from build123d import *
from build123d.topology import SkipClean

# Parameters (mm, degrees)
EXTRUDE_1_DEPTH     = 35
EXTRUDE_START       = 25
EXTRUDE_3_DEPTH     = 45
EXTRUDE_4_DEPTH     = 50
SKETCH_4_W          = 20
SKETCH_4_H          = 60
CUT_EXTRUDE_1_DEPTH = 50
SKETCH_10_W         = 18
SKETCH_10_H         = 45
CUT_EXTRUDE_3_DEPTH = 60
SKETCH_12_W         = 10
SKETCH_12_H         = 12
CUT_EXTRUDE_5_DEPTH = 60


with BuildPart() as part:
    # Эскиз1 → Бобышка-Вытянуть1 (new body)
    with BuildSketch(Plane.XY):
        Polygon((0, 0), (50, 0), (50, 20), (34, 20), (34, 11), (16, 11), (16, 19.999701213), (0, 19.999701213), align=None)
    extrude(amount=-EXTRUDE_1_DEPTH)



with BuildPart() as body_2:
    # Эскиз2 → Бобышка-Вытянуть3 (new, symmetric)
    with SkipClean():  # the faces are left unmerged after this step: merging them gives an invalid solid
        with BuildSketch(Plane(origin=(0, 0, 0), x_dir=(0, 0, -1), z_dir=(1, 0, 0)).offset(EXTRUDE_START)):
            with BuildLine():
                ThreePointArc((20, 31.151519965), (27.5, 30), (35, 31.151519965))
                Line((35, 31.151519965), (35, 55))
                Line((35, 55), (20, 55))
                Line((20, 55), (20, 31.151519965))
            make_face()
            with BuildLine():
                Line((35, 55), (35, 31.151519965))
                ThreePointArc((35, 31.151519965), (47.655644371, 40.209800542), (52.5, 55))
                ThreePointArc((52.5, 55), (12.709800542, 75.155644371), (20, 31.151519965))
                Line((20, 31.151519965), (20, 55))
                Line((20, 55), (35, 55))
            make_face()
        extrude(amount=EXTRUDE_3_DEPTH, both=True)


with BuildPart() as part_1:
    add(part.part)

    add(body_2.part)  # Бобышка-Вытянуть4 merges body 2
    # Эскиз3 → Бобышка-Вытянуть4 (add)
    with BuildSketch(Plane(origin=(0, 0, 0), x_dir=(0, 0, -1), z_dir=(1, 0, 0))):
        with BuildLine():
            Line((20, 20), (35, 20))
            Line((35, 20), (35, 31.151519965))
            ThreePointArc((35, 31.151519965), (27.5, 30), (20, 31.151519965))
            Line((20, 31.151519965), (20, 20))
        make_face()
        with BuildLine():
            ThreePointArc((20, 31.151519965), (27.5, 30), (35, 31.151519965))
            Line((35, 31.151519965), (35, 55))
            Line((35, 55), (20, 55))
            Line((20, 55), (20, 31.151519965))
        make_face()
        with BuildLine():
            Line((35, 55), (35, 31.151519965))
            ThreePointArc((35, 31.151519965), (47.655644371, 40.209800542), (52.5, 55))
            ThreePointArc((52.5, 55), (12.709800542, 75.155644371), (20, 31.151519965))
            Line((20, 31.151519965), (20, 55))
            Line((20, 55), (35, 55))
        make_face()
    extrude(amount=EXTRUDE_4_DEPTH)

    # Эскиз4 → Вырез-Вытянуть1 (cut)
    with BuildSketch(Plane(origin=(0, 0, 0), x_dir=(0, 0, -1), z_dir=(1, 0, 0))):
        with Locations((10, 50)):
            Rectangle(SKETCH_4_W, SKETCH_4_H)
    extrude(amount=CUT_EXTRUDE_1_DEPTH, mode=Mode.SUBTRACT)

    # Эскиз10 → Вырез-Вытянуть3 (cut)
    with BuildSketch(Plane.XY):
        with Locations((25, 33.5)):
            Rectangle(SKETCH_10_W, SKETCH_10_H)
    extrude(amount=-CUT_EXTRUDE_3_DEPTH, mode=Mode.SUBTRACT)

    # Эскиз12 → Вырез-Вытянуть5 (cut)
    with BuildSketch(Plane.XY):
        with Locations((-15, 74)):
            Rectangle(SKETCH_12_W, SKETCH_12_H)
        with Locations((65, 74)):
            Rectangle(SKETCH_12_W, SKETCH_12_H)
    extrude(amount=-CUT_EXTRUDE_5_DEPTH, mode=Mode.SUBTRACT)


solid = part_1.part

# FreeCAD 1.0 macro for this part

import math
import FreeCAD as App
import Part
import Sketcher

V = App.Vector
Q = App.Units.Quantity

doc = App.newDocument("Part")
params = doc.addObject("Spreadsheet::Sheet", "Params")
for row, (alias, value) in enumerate([
    ("sketch1_width", "50 mm"),
    ("sketch1_width2", "16 mm"),
    ("sketch1_height", "20 mm"),
    ("sketch1_height2", "9 mm"),
    ("pad1_length", "35 mm"),
    ("sketch2_radius", "25 mm"),
    ("sketch2_height", "15 mm"),
    ("pad2_length", "90 mm"),
    ("sketch3_radius", "25 mm"),
    ("sketch3_height", "15 mm"),
    ("pad3_length", "50 mm"),
    ("sketch4_width", "60 mm"),
    ("sketch4_height", "20 mm"),
    ("pocket1_length", "50 mm"),
    ("sketch5_width", "18 mm"),
    ("sketch5_height", "45 mm"),
    ("pocket2_length", "60 mm"),
    ("sketch6_width", "10 mm"),
    ("sketch6_height", "12 mm"),
    ("pocket3_length", "60 mm"),
], start=1):
    params.set(f"A{row}", alias)
    params.set(f"B{row}", "=" + value)
    params.setAlias(f"B{row}", alias)

body = doc.addObject("PartDesign::Body", "Body")

# Sketch on XY plane
sketch1 = body.newObject("Sketcher::SketchObject", "Sketch")
sketch1.AttachmentSupport = (doc.getObject("XY_Plane"), [""])
sketch1.MapMode = "FlatFace"
sketch1.addGeometry(Part.LineSegment(V(0, 0, 0), V(50, 0, 0)), False)
sketch1.addGeometry(Part.LineSegment(V(50, 0, 0), V(50, 20, 0)), False)
sketch1.addGeometry(Part.LineSegment(V(50, 20, 0), V(34, 20, 0)), False)
sketch1.addGeometry(Part.LineSegment(V(34, 20, 0), V(34, 11, 0)), False)
sketch1.addGeometry(Part.LineSegment(V(34, 11, 0), V(16, 11, 0)), False)
sketch1.addGeometry(Part.LineSegment(V(16, 11, 0), V(16, 20, 0)), False)
sketch1.addGeometry(Part.LineSegment(V(16, 20, 0), V(0, 20, 0)), False)
sketch1.addGeometry(Part.LineSegment(V(0, 20, 0), V(0, 0, 0)), False)
sketch1.addConstraint(Sketcher.Constraint("Coincident", 0, 2, 1, 1))
sketch1.addConstraint(Sketcher.Constraint("Coincident", 1, 2, 2, 1))
sketch1.addConstraint(Sketcher.Constraint("Coincident", 2, 2, 3, 1))
sketch1.addConstraint(Sketcher.Constraint("Coincident", 3, 2, 4, 1))
sketch1.addConstraint(Sketcher.Constraint("Coincident", 4, 2, 5, 1))
sketch1.addConstraint(Sketcher.Constraint("Coincident", 5, 2, 6, 1))
sketch1.addConstraint(Sketcher.Constraint("Coincident", 6, 2, 7, 1))
sketch1.addConstraint(Sketcher.Constraint("Coincident", 7, 2, 0, 1))
sketch1.addConstraint(Sketcher.Constraint("Horizontal", 0))
sketch1.addConstraint(Sketcher.Constraint("Vertical", 1))
sketch1.addConstraint(Sketcher.Constraint("Horizontal", 2))
sketch1.addConstraint(Sketcher.Constraint("Vertical", 3))
sketch1.addConstraint(Sketcher.Constraint("Horizontal", 4))
sketch1.addConstraint(Sketcher.Constraint("Vertical", 5))
sketch1.addConstraint(Sketcher.Constraint("Horizontal", 6))
sketch1.addConstraint(Sketcher.Constraint("Vertical", 7))
sketch1.addConstraint(Sketcher.Constraint("Coincident", 7, 2, -1, 1))
sketch1.addConstraint(Sketcher.Constraint("Equal", 2, 6))
sketch1.addConstraint(Sketcher.Constraint("DistanceX", 0, 1, 0, 2, Q("50 mm")))
sketch1.addConstraint(Sketcher.Constraint("DistanceX", 2, 2, 2, 1, Q("16 mm")))
sketch1.addConstraint(Sketcher.Constraint("DistanceY", 1, 1, 1, 2, Q("20 mm")))
sketch1.addConstraint(Sketcher.Constraint("DistanceY", 3, 2, 3, 1, Q("9 mm")))
sketch1.addConstraint(Sketcher.Constraint("DistanceY", 5, 1, 5, 2, Q("8.999701 mm")))
sketch1.setExpression("Constraints[18]", "Params.sketch1_width")
sketch1.setExpression("Constraints[19]", "Params.sketch1_width2")
sketch1.setExpression("Constraints[20]", "Params.sketch1_height")
sketch1.setExpression("Constraints[21]", "Params.sketch1_height2")
pad1 = body.newObject("PartDesign::Pad", "Pad")
pad1.Profile = sketch1
pad1.setExpression("Length", "Params.pad1_length")
pad1.Reversed = True
body2 = doc.addObject("PartDesign::Body", "Body001")

# Sketch on YZ plane
sketch2 = body2.newObject("Sketcher::SketchObject", "Sketch001")
sketch2.AttachmentSupport = (doc.getObject("YZ_Plane001"), [""])
sketch2.MapMode = "FlatFace"
sketch2.AttachmentOffset = App.Placement(V(0, 0, 25), App.Rotation())
sketch2.addGeometry(Part.ArcOfCircle(Part.Circle(V(55, -28, 0), V(0, 0, 1), 25), math.radians(163), math.radians(197)), False)
sketch2.addGeometry(Part.LineSegment(V(31, -35, 0), V(55, -35, 0)), False)
sketch2.addGeometry(Part.LineSegment(V(55, -35, 0), V(55, -20, 0)), False)
sketch2.addGeometry(Part.LineSegment(V(55, -20, 0), V(31, -20, 0)), False)
sketch2.addGeometry(Part.LineSegment(V(55, -35, 0), V(31, -35, 0)), False)
sketch2.addGeometry(Part.ArcOfCircle(Part.Circle(V(55, -28, 0), V(0, 0, 1), 25), math.radians(-163), math.radians(-90)), False)
sketch2.addGeometry(Part.ArcOfCircle(Part.Circle(V(55, -28, 0), V(0, 0, 1), 25), math.radians(-90), math.radians(163)), False)
sketch2.addGeometry(Part.LineSegment(V(31, -20, 0), V(55, -20, 0)), False)
sketch2.addGeometry(Part.LineSegment(V(55, -20, 0), V(55, -35, 0)), False)
sketch2.addConstraint(Sketcher.Constraint("Coincident", 0, 2, 1, 1))
sketch2.addConstraint(Sketcher.Constraint("Coincident", 1, 2, 2, 1))
sketch2.addConstraint(Sketcher.Constraint("Coincident", 2, 2, 3, 1))
sketch2.addConstraint(Sketcher.Constraint("Coincident", 3, 2, 0, 1))
sketch2.addConstraint(Sketcher.Constraint("Coincident", 4, 2, 5, 1))
sketch2.addConstraint(Sketcher.Constraint("Tangent", 5, 2, 6, 1))
sketch2.addConstraint(Sketcher.Constraint("Coincident", 6, 2, 7, 1))
sketch2.addConstraint(Sketcher.Constraint("Coincident", 7, 2, 8, 1))
sketch2.addConstraint(Sketcher.Constraint("Coincident", 8, 2, 4, 1))
sketch2.addConstraint(Sketcher.Constraint("Horizontal", 1))
sketch2.addConstraint(Sketcher.Constraint("Vertical", 2))
sketch2.addConstraint(Sketcher.Constraint("Horizontal", 3))
sketch2.addConstraint(Sketcher.Constraint("Horizontal", 4))
sketch2.addConstraint(Sketcher.Constraint("Horizontal", 7))
sketch2.addConstraint(Sketcher.Constraint("Vertical", 8))
sketch2.addConstraint(Sketcher.Constraint("Coincident", 5, 3, 0, 3))
sketch2.addConstraint(Sketcher.Constraint("Coincident", 4, 2, 0, 2))
sketch2.addConstraint(Sketcher.Constraint("Coincident", 6, 2, 3, 2))
sketch2.addConstraint(Sketcher.Constraint("Vertical", 6, 3, 1, 2))
sketch2.addConstraint(Sketcher.Constraint("Vertical", 0, 2, 3, 2))
sketch2.addConstraint(Sketcher.Constraint("Vertical", 2, 2, 5, 2))
sketch2.addConstraint(Sketcher.Constraint("Vertical", 5, 2, 7, 2))
sketch2.addConstraint(Sketcher.Constraint("Radius", 0, Q("25 mm")))
sketch2.addConstraint(Sketcher.Constraint("DistanceY", 2, 1, 2, 2, Q("15 mm")))
sketch2.addConstraint(Sketcher.Constraint("DistanceX", -1, 1, 0, 3, Q("55 mm")))
sketch2.addConstraint(Sketcher.Constraint("DistanceY", 0, 2, -1, 1, Q("35 mm")))
sketch2.setExpression("Constraints[22]", "Params.sketch2_radius")
sketch2.setExpression("Constraints[23]", "Params.sketch2_height")
pad2 = body2.newObject("PartDesign::Pad", "Pad001")
pad2.Profile = sketch2
pad2.setExpression("Length", "Params.pad2_length")
pad2.Midplane = True
body.AllowCompound = True
doc.recompute()

boolean = body.newObject("PartDesign::Boolean", "Boolean")
boolean.Type = "Fuse"
boolean.addObjects([body2])

# Sketch on YZ plane
sketch3 = body.newObject("Sketcher::SketchObject", "Sketch002")
sketch3.AttachmentSupport = (doc.getObject("YZ_Plane"), [""])
sketch3.MapMode = "FlatFace"
sketch3.addGeometry(Part.LineSegment(V(20, -20, 0), V(20, -35, 0)), False)
sketch3.addGeometry(Part.LineSegment(V(20, -35, 0), V(31, -35, 0)), False)
sketch3.addGeometry(Part.ArcOfCircle(Part.Circle(V(55, -28, 0), V(0, 0, 1), 25), math.radians(-163), math.radians(-90)), False)
sketch3.addGeometry(Part.ArcOfCircle(Part.Circle(V(55, -28, 0), V(0, 0, 1), 25), math.radians(-90), math.radians(163)), False)
sketch3.addGeometry(Part.LineSegment(V(31, -20, 0), V(20, -20, 0)), False)
sketch3.addConstraint(Sketcher.Constraint("Coincident", 0, 2, 1, 1))
sketch3.addConstraint(Sketcher.Constraint("Coincident", 1, 2, 2, 1))
sketch3.addConstraint(Sketcher.Constraint("Tangent", 2, 2, 3, 1))
sketch3.addConstraint(Sketcher.Constraint("Coincident", 3, 2, 4, 1))
sketch3.addConstraint(Sketcher.Constraint("Coincident", 4, 2, 0, 1))
sketch3.addConstraint(Sketcher.Constraint("Vertical", 0))
sketch3.addConstraint(Sketcher.Constraint("Horizontal", 1))
sketch3.addConstraint(Sketcher.Constraint("Horizontal", 4))
sketch3.addConstraint(Sketcher.Constraint("Equal", 2, 3))
sketch3.addConstraint(Sketcher.Constraint("Vertical", 3, 3, 2, 2))
sketch3.addConstraint(Sketcher.Constraint("Vertical", 1, 2, 3, 2))
sketch3.addConstraint(Sketcher.Constraint("Radius", 2, Q("25 mm")))
sketch3.addConstraint(Sketcher.Constraint("DistanceY", 0, 2, 0, 1, Q("15 mm")))
sketch3.addConstraint(Sketcher.Constraint("DistanceX", -1, 1, 2, 3, Q("55 mm")))
sketch3.addConstraint(Sketcher.Constraint("DistanceX", -1, 1, 0, 2, Q("20 mm")))
sketch3.addConstraint(Sketcher.Constraint("DistanceY", 0, 2, -1, 1, Q("35 mm")))
sketch3.setExpression("Constraints[11]", "Params.sketch3_radius")
sketch3.setExpression("Constraints[12]", "Params.sketch3_height")
pad3 = body.newObject("PartDesign::Pad", "Pad002")
pad3.Profile = sketch3
pad3.setExpression("Length", "Params.pad3_length")

# Sketch on YZ plane
sketch4 = body.newObject("Sketcher::SketchObject", "Sketch003")
sketch4.AttachmentSupport = (doc.getObject("YZ_Plane"), [""])
sketch4.MapMode = "FlatFace"
sketch4.addGeometry(Part.LineSegment(V(80, 0, 0), V(20, 0, 0)), False)
sketch4.addGeometry(Part.LineSegment(V(20, 0, 0), V(20, -20, 0)), False)
sketch4.addGeometry(Part.LineSegment(V(20, -20, 0), V(80, -20, 0)), False)
sketch4.addGeometry(Part.LineSegment(V(80, -20, 0), V(80, 0, 0)), False)
sketch4.addConstraint(Sketcher.Constraint("Coincident", 0, 2, 1, 1))
sketch4.addConstraint(Sketcher.Constraint("Coincident", 1, 2, 2, 1))
sketch4.addConstraint(Sketcher.Constraint("Coincident", 2, 2, 3, 1))
sketch4.addConstraint(Sketcher.Constraint("Coincident", 3, 2, 0, 1))
sketch4.addConstraint(Sketcher.Constraint("Horizontal", 0))
sketch4.addConstraint(Sketcher.Constraint("Vertical", 1))
sketch4.addConstraint(Sketcher.Constraint("Horizontal", 2))
sketch4.addConstraint(Sketcher.Constraint("Vertical", 3))
sketch4.addConstraint(Sketcher.Constraint("PointOnObject", 0, 2, -1))
sketch4.addConstraint(Sketcher.Constraint("DistanceX", 0, 2, 0, 1, Q("60 mm")))
sketch4.addConstraint(Sketcher.Constraint("DistanceY", 1, 2, 1, 1, Q("20 mm")))
sketch4.addConstraint(Sketcher.Constraint("DistanceX", -1, 1, 0, 2, Q("20 mm")))
sketch4.setExpression("Constraints[9]", "Params.sketch4_width")
sketch4.setExpression("Constraints[10]", "Params.sketch4_height")
pocket1 = body.newObject("PartDesign::Pocket", "Pocket")
pocket1.Profile = sketch4
pocket1.setExpression("Length", "Params.pocket1_length")
pocket1.Reversed = True

# Sketch on XY plane
sketch5 = body.newObject("Sketcher::SketchObject", "Sketch004")
sketch5.AttachmentSupport = (doc.getObject("XY_Plane"), [""])
sketch5.MapMode = "FlatFace"
sketch5.addGeometry(Part.LineSegment(V(16, 56, 0), V(16, 11, 0)), False)
sketch5.addGeometry(Part.LineSegment(V(16, 11, 0), V(34, 11, 0)), False)
sketch5.addGeometry(Part.LineSegment(V(34, 11, 0), V(34, 56, 0)), False)
sketch5.addGeometry(Part.LineSegment(V(34, 56, 0), V(16, 56, 0)), False)
sketch5.addConstraint(Sketcher.Constraint("Coincident", 0, 2, 1, 1))
sketch5.addConstraint(Sketcher.Constraint("Coincident", 1, 2, 2, 1))
sketch5.addConstraint(Sketcher.Constraint("Coincident", 2, 2, 3, 1))
sketch5.addConstraint(Sketcher.Constraint("Coincident", 3, 2, 0, 1))
sketch5.addConstraint(Sketcher.Constraint("Vertical", 0))
sketch5.addConstraint(Sketcher.Constraint("Horizontal", 1))
sketch5.addConstraint(Sketcher.Constraint("Vertical", 2))
sketch5.addConstraint(Sketcher.Constraint("Horizontal", 3))
sketch5.addConstraint(Sketcher.Constraint("DistanceX", 1, 1, 1, 2, Q("18 mm")))
sketch5.addConstraint(Sketcher.Constraint("DistanceY", 0, 2, 0, 1, Q("45 mm")))
sketch5.addConstraint(Sketcher.Constraint("DistanceX", -1, 1, 0, 2, Q("16 mm")))
sketch5.addConstraint(Sketcher.Constraint("DistanceY", -1, 1, 0, 2, Q("11 mm")))
sketch5.setExpression("Constraints[8]", "Params.sketch5_width")
sketch5.setExpression("Constraints[9]", "Params.sketch5_height")
pocket2 = body.newObject("PartDesign::Pocket", "Pocket001")
pocket2.Profile = sketch5
pocket2.setExpression("Length", "Params.pocket2_length")

# Sketch on XY plane
sketch6 = body.newObject("Sketcher::SketchObject", "Sketch005")
sketch6.AttachmentSupport = (doc.getObject("XY_Plane"), [""])
sketch6.MapMode = "FlatFace"
sketch6.addGeometry(Part.LineSegment(V(-20, 80, 0), V(-20, 68, 0)), False)
sketch6.addGeometry(Part.LineSegment(V(-20, 68, 0), V(-10, 68, 0)), False)
sketch6.addGeometry(Part.LineSegment(V(-10, 68, 0), V(-10, 80, 0)), False)
sketch6.addGeometry(Part.LineSegment(V(-10, 80, 0), V(-20, 80, 0)), False)
sketch6.addGeometry(Part.LineSegment(V(60, 80, 0), V(60, 68, 0)), False)
sketch6.addGeometry(Part.LineSegment(V(60, 68, 0), V(70, 68, 0)), False)
sketch6.addGeometry(Part.LineSegment(V(70, 68, 0), V(70, 80, 0)), False)
sketch6.addGeometry(Part.LineSegment(V(70, 80, 0), V(60, 80, 0)), False)
sketch6.addConstraint(Sketcher.Constraint("Coincident", 0, 2, 1, 1))
sketch6.addConstraint(Sketcher.Constraint("Coincident", 1, 2, 2, 1))
sketch6.addConstraint(Sketcher.Constraint("Coincident", 2, 2, 3, 1))
sketch6.addConstraint(Sketcher.Constraint("Coincident", 3, 2, 0, 1))
sketch6.addConstraint(Sketcher.Constraint("Coincident", 4, 2, 5, 1))
sketch6.addConstraint(Sketcher.Constraint("Coincident", 5, 2, 6, 1))
sketch6.addConstraint(Sketcher.Constraint("Coincident", 6, 2, 7, 1))
sketch6.addConstraint(Sketcher.Constraint("Coincident", 7, 2, 4, 1))
sketch6.addConstraint(Sketcher.Constraint("Vertical", 0))
sketch6.addConstraint(Sketcher.Constraint("Horizontal", 1))
sketch6.addConstraint(Sketcher.Constraint("Vertical", 2))
sketch6.addConstraint(Sketcher.Constraint("Horizontal", 3))
sketch6.addConstraint(Sketcher.Constraint("Vertical", 4))
sketch6.addConstraint(Sketcher.Constraint("Horizontal", 5))
sketch6.addConstraint(Sketcher.Constraint("Vertical", 6))
sketch6.addConstraint(Sketcher.Constraint("Horizontal", 7))
sketch6.addConstraint(Sketcher.Constraint("Horizontal", 1, 2, 4, 2))
sketch6.addConstraint(Sketcher.Constraint("Horizontal", 3, 2, 6, 2))
sketch6.addConstraint(Sketcher.Constraint("Equal", 3, 5))
sketch6.addConstraint(Sketcher.Constraint("DistanceX", 1, 1, 1, 2, Q("10 mm")))
sketch6.addConstraint(Sketcher.Constraint("DistanceY", 0, 2, 0, 1, Q("12 mm")))
sketch6.addConstraint(Sketcher.Constraint("DistanceX", 0, 2, -1, 1, Q("20 mm")))
sketch6.addConstraint(Sketcher.Constraint("DistanceY", -1, 1, 0, 2, Q("68 mm")))
sketch6.addConstraint(Sketcher.Constraint("DistanceX", -1, 1, 4, 2, Q("60 mm")))
sketch6.setExpression("Constraints[19]", "Params.sketch6_width")
sketch6.setExpression("Constraints[20]", "Params.sketch6_height")
pocket3 = body.newObject("PartDesign::Pocket", "Pocket002")
pocket3.Profile = sketch6
pocket3.setExpression("Length", "Params.pocket3_length")

doc.recompute()
